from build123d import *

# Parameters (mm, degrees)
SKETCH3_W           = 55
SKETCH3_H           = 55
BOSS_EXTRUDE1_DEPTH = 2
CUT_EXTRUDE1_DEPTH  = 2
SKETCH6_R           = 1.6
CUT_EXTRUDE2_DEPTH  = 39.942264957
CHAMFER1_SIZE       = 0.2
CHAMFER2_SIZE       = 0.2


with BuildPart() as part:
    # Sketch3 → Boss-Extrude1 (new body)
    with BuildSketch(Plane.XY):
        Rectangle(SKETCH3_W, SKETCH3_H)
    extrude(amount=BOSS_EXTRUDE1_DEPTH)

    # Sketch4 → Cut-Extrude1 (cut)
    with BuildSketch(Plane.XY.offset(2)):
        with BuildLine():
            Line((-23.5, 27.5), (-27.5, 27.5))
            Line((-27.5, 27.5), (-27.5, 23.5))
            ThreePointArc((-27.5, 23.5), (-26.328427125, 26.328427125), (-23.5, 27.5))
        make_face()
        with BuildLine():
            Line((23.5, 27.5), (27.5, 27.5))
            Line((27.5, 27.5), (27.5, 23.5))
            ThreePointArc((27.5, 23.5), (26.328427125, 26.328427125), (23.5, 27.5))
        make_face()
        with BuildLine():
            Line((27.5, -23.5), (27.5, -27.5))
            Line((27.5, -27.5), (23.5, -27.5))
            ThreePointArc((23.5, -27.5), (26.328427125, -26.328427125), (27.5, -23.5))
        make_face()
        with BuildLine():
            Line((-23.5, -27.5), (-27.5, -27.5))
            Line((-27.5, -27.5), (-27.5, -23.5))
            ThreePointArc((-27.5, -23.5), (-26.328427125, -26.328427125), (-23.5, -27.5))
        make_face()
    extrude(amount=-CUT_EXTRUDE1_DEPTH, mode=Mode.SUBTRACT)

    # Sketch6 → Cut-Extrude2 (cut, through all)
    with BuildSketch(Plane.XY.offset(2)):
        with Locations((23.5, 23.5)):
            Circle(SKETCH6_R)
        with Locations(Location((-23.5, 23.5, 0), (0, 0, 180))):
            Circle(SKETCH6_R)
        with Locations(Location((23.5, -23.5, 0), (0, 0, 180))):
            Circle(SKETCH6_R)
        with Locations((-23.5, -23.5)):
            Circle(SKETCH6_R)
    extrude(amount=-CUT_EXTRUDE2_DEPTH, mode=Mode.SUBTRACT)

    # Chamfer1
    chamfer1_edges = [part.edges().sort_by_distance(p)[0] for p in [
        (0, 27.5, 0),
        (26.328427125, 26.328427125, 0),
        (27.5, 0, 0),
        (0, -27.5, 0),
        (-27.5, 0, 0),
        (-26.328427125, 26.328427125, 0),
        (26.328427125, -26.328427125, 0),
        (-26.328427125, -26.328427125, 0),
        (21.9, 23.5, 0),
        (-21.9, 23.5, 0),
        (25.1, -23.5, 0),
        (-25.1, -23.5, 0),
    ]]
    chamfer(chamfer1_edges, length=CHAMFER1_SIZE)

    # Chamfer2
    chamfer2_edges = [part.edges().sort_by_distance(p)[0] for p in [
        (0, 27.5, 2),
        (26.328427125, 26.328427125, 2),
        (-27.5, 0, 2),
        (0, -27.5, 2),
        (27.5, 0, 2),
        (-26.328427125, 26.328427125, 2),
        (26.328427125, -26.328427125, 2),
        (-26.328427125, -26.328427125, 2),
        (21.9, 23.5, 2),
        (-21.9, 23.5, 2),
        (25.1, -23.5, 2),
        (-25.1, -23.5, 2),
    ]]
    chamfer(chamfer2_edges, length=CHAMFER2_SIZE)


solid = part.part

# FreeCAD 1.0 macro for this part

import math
import FreeCAD as App
import Part
import Sketcher


def edges_at(feature, points):
    """Names of the edges that pass closest to the given points."""
    edges = feature.Shape.Edges
    near = lambda p: min(range(len(edges)), key=lambda i: edges[i].distToShape(Part.Vertex(*p))[0])
    return sorted({f"Edge{near(p) + 1}" for p in points})


def add_polygon(sketch, points):
    """Adds a closed chain of lines whose ends are joined by coincident constraints."""
    first, n = sketch.GeometryCount, len(points)
    for a, b in zip(points, points[1:] + points[:1]):
        sketch.addGeometry(Part.LineSegment(App.Vector(*a, 0), App.Vector(*b, 0)), False)
    for i in range(n):
        sketch.addConstraint(Sketcher.Constraint("Coincident", first + i, 2, first + (i + 1) % n, 1))

doc = App.newDocument("Part")
body = doc.addObject("PartDesign::Body", "Body")

sketch1 = body.newObject("Sketcher::SketchObject", "Sketch")
sketch1.AttachmentSupport = (doc.getObject("XY_Plane"), [""])
sketch1.MapMode = "FlatFace"
add_polygon(sketch1, [(-27.5, 27.5), (-27.5, -27.5), (27.5, -27.5), (27.5, 27.5)])
sketch1.addConstraint([
    Sketcher.Constraint("Vertical", 0),
    Sketcher.Constraint("Horizontal", 1),
    Sketcher.Constraint("Vertical", 2),
    Sketcher.Constraint("Horizontal", 3),
    Sketcher.Constraint("Symmetric", 0, 2, 2, 2, -1, 1),
    Sketcher.Constraint("Equal", 3, 0),
    Sketcher.Constraint("DistanceX", 1, 1, 1, 2, 55.0),
])
pad1 = body.newObject("PartDesign::Pad", "Pad")
pad1.Profile = sketch1
pad1.Length = 2

sketch2 = body.newObject("Sketcher::SketchObject", "Sketch001")
sketch2.AttachmentSupport = (doc.getObject("XY_Plane"), [""])
sketch2.MapMode = "FlatFace"
sketch2.AttachmentOffset = App.Placement(App.Vector(0, 0, 2), App.Rotation())
sketch2.addGeometry([
    Part.LineSegment(App.Vector(-23.5, 27.5, 0), App.Vector(-27.5, 27.5, 0)),
    Part.LineSegment(App.Vector(-27.5, 27.5, 0), App.Vector(-27.5, 23.5, 0)),
    Part.ArcOfCircle(Part.Circle(App.Vector(-23.5, 23.5, 0), App.Vector(0, 0, 1), 4), math.radians(90), math.radians(180)),
    Part.LineSegment(App.Vector(27.5, 27.5, 0), App.Vector(23.5, 27.5, 0)),
    Part.ArcOfCircle(Part.Circle(App.Vector(23.5, 23.5, 0), App.Vector(0, 0, 1), 4), math.radians(0), math.radians(90)),
    Part.LineSegment(App.Vector(27.5, 23.5, 0), App.Vector(27.5, 27.5, 0)),
    Part.LineSegment(App.Vector(27.5, -27.5, 0), App.Vector(27.5, -23.5, 0)),
    Part.ArcOfCircle(Part.Circle(App.Vector(23.5, -23.5, 0), App.Vector(0, 0, 1), 4), math.radians(-90), math.radians(0)),
    Part.LineSegment(App.Vector(23.5, -27.5, 0), App.Vector(27.5, -27.5, 0)),
    Part.LineSegment(App.Vector(-27.5, -27.5, 0), App.Vector(-23.5, -27.5, 0)),
    Part.ArcOfCircle(Part.Circle(App.Vector(-23.5, -23.5, 0), App.Vector(0, 0, 1), 4), math.radians(180), math.radians(270)),
    Part.LineSegment(App.Vector(-27.5, -23.5, 0), App.Vector(-27.5, -27.5, 0)),
], False)
sketch2.addConstraint([
    Sketcher.Constraint("Coincident", 0, 2, 1, 1),
    Sketcher.Constraint("Tangent", 1, 2, 2, 2),
    Sketcher.Constraint("Tangent", 2, 1, 0, 1),
    Sketcher.Constraint("Tangent", 3, 2, 4, 2),
    Sketcher.Constraint("Tangent", 4, 1, 5, 1),
    Sketcher.Constraint("Coincident", 5, 2, 3, 1),
    Sketcher.Constraint("Tangent", 6, 2, 7, 2),
    Sketcher.Constraint("Tangent", 7, 1, 8, 1),
    Sketcher.Constraint("Coincident", 8, 2, 6, 1),
    Sketcher.Constraint("Tangent", 9, 2, 10, 2),
    Sketcher.Constraint("Tangent", 10, 1, 11, 1),
    Sketcher.Constraint("Coincident", 11, 2, 9, 1),
    Sketcher.Constraint("Horizontal", 0),
    Sketcher.Constraint("Vertical", 1),
    Sketcher.Constraint("Horizontal", 3),
    Sketcher.Constraint("Vertical", 5),
    Sketcher.Constraint("Vertical", 6),
    Sketcher.Constraint("Horizontal", 8),
    Sketcher.Constraint("Horizontal", 9),
    Sketcher.Constraint("Vertical", 11),
    Sketcher.Constraint("Equal", 2, 4),
    Sketcher.Constraint("Equal", 4, 7),
    Sketcher.Constraint("Equal", 7, 10),
    Sketcher.Constraint("Symmetric", 2, 3, 7, 3, -1, 1),
    Sketcher.Constraint("Symmetric", 4, 3, 10, 3, -1, 1),
    Sketcher.Constraint("Symmetric", 2, 3, 4, 3, -2),
    Sketcher.Constraint("Radius", 2, 4.0),
    Sketcher.Constraint("DistanceX", 2, 3, 4, 3, 47.0),
    Sketcher.Constraint("DistanceY", 7, 3, 4, 3, 47.0),
])
pocket1 = body.newObject("PartDesign::Pocket", "Pocket")
pocket1.Profile = sketch2
pocket1.Length = 2

sketch3 = body.newObject("Sketcher::SketchObject", "Sketch002")
sketch3.AttachmentSupport = (doc.getObject("XY_Plane"), [""])
sketch3.MapMode = "FlatFace"
sketch3.AttachmentOffset = App.Placement(App.Vector(0, 0, 2), App.Rotation())
sketch3.addGeometry([
    Part.Circle(App.Vector(23.5, 23.5, 0), App.Vector(0, 0, 1), 1.6),
    Part.Circle(App.Vector(-23.5, 23.5, 0), App.Vector(0, 0, 1), 1.6),
    Part.Circle(App.Vector(23.5, -23.5, 0), App.Vector(0, 0, 1), 1.6),
    Part.Circle(App.Vector(-23.5, -23.5, 0), App.Vector(0, 0, 1), 1.6),
], False)
sketch3.addConstraint([
    Sketcher.Constraint("Equal", 0, 1),
    Sketcher.Constraint("Equal", 1, 2),
    Sketcher.Constraint("Equal", 2, 3),
    Sketcher.Constraint("Symmetric", 1, 3, 2, 3, -1, 1),
    Sketcher.Constraint("Symmetric", 0, 3, 3, 3, -1, 1),
    Sketcher.Constraint("Symmetric", 0, 3, 1, 3, -2),
    Sketcher.Constraint("Diameter", 0, 3.2),
    Sketcher.Constraint("DistanceX", 1, 3, 0, 3, 47.0),
    Sketcher.Constraint("DistanceY", 2, 3, 0, 3, 47.0),
])
pocket2 = body.newObject("PartDesign::Pocket", "Pocket001")
pocket2.Profile = sketch3
pocket2.Type = "ThroughAll"
doc.recompute()

chamfer = body.newObject("PartDesign::Chamfer", "Chamfer")
chamfer.Base = (pocket2, edges_at(pocket2, [
    (0, 27.5, 0),
    (26.328, 26.328, 0),
    (27.5, 0, 0),
    (0, -27.5, 0),
    (-27.5, 0, 0),
    (-26.328, 26.328, 0),
    (26.328, -26.328, 0),
    (-26.328, -26.328, 0),
    (21.9, 23.5, 0),
    (-21.9, 23.5, 0),
    (25.1, -23.5, 0),
    (-25.1, -23.5, 0),
]))
chamfer.Size = 0.2
doc.recompute()

chamfer2 = body.newObject("PartDesign::Chamfer", "Chamfer001")
chamfer2.Base = (chamfer, edges_at(chamfer, [
    (0, 27.5, 2),
    (26.328, 26.328, 2),
    (-27.5, 0, 2),
    (0, -27.5, 2),
    (27.5, 0, 2),
    (-26.328, 26.328, 2),
    (26.328, -26.328, 2),
    (-26.328, -26.328, 2),
    (21.9, 23.5, 2),
    (-21.9, 23.5, 2),
    (25.1, -23.5, 2),
    (-25.1, -23.5, 2),
]))
chamfer2.Size = 0.2

doc.recompute()
